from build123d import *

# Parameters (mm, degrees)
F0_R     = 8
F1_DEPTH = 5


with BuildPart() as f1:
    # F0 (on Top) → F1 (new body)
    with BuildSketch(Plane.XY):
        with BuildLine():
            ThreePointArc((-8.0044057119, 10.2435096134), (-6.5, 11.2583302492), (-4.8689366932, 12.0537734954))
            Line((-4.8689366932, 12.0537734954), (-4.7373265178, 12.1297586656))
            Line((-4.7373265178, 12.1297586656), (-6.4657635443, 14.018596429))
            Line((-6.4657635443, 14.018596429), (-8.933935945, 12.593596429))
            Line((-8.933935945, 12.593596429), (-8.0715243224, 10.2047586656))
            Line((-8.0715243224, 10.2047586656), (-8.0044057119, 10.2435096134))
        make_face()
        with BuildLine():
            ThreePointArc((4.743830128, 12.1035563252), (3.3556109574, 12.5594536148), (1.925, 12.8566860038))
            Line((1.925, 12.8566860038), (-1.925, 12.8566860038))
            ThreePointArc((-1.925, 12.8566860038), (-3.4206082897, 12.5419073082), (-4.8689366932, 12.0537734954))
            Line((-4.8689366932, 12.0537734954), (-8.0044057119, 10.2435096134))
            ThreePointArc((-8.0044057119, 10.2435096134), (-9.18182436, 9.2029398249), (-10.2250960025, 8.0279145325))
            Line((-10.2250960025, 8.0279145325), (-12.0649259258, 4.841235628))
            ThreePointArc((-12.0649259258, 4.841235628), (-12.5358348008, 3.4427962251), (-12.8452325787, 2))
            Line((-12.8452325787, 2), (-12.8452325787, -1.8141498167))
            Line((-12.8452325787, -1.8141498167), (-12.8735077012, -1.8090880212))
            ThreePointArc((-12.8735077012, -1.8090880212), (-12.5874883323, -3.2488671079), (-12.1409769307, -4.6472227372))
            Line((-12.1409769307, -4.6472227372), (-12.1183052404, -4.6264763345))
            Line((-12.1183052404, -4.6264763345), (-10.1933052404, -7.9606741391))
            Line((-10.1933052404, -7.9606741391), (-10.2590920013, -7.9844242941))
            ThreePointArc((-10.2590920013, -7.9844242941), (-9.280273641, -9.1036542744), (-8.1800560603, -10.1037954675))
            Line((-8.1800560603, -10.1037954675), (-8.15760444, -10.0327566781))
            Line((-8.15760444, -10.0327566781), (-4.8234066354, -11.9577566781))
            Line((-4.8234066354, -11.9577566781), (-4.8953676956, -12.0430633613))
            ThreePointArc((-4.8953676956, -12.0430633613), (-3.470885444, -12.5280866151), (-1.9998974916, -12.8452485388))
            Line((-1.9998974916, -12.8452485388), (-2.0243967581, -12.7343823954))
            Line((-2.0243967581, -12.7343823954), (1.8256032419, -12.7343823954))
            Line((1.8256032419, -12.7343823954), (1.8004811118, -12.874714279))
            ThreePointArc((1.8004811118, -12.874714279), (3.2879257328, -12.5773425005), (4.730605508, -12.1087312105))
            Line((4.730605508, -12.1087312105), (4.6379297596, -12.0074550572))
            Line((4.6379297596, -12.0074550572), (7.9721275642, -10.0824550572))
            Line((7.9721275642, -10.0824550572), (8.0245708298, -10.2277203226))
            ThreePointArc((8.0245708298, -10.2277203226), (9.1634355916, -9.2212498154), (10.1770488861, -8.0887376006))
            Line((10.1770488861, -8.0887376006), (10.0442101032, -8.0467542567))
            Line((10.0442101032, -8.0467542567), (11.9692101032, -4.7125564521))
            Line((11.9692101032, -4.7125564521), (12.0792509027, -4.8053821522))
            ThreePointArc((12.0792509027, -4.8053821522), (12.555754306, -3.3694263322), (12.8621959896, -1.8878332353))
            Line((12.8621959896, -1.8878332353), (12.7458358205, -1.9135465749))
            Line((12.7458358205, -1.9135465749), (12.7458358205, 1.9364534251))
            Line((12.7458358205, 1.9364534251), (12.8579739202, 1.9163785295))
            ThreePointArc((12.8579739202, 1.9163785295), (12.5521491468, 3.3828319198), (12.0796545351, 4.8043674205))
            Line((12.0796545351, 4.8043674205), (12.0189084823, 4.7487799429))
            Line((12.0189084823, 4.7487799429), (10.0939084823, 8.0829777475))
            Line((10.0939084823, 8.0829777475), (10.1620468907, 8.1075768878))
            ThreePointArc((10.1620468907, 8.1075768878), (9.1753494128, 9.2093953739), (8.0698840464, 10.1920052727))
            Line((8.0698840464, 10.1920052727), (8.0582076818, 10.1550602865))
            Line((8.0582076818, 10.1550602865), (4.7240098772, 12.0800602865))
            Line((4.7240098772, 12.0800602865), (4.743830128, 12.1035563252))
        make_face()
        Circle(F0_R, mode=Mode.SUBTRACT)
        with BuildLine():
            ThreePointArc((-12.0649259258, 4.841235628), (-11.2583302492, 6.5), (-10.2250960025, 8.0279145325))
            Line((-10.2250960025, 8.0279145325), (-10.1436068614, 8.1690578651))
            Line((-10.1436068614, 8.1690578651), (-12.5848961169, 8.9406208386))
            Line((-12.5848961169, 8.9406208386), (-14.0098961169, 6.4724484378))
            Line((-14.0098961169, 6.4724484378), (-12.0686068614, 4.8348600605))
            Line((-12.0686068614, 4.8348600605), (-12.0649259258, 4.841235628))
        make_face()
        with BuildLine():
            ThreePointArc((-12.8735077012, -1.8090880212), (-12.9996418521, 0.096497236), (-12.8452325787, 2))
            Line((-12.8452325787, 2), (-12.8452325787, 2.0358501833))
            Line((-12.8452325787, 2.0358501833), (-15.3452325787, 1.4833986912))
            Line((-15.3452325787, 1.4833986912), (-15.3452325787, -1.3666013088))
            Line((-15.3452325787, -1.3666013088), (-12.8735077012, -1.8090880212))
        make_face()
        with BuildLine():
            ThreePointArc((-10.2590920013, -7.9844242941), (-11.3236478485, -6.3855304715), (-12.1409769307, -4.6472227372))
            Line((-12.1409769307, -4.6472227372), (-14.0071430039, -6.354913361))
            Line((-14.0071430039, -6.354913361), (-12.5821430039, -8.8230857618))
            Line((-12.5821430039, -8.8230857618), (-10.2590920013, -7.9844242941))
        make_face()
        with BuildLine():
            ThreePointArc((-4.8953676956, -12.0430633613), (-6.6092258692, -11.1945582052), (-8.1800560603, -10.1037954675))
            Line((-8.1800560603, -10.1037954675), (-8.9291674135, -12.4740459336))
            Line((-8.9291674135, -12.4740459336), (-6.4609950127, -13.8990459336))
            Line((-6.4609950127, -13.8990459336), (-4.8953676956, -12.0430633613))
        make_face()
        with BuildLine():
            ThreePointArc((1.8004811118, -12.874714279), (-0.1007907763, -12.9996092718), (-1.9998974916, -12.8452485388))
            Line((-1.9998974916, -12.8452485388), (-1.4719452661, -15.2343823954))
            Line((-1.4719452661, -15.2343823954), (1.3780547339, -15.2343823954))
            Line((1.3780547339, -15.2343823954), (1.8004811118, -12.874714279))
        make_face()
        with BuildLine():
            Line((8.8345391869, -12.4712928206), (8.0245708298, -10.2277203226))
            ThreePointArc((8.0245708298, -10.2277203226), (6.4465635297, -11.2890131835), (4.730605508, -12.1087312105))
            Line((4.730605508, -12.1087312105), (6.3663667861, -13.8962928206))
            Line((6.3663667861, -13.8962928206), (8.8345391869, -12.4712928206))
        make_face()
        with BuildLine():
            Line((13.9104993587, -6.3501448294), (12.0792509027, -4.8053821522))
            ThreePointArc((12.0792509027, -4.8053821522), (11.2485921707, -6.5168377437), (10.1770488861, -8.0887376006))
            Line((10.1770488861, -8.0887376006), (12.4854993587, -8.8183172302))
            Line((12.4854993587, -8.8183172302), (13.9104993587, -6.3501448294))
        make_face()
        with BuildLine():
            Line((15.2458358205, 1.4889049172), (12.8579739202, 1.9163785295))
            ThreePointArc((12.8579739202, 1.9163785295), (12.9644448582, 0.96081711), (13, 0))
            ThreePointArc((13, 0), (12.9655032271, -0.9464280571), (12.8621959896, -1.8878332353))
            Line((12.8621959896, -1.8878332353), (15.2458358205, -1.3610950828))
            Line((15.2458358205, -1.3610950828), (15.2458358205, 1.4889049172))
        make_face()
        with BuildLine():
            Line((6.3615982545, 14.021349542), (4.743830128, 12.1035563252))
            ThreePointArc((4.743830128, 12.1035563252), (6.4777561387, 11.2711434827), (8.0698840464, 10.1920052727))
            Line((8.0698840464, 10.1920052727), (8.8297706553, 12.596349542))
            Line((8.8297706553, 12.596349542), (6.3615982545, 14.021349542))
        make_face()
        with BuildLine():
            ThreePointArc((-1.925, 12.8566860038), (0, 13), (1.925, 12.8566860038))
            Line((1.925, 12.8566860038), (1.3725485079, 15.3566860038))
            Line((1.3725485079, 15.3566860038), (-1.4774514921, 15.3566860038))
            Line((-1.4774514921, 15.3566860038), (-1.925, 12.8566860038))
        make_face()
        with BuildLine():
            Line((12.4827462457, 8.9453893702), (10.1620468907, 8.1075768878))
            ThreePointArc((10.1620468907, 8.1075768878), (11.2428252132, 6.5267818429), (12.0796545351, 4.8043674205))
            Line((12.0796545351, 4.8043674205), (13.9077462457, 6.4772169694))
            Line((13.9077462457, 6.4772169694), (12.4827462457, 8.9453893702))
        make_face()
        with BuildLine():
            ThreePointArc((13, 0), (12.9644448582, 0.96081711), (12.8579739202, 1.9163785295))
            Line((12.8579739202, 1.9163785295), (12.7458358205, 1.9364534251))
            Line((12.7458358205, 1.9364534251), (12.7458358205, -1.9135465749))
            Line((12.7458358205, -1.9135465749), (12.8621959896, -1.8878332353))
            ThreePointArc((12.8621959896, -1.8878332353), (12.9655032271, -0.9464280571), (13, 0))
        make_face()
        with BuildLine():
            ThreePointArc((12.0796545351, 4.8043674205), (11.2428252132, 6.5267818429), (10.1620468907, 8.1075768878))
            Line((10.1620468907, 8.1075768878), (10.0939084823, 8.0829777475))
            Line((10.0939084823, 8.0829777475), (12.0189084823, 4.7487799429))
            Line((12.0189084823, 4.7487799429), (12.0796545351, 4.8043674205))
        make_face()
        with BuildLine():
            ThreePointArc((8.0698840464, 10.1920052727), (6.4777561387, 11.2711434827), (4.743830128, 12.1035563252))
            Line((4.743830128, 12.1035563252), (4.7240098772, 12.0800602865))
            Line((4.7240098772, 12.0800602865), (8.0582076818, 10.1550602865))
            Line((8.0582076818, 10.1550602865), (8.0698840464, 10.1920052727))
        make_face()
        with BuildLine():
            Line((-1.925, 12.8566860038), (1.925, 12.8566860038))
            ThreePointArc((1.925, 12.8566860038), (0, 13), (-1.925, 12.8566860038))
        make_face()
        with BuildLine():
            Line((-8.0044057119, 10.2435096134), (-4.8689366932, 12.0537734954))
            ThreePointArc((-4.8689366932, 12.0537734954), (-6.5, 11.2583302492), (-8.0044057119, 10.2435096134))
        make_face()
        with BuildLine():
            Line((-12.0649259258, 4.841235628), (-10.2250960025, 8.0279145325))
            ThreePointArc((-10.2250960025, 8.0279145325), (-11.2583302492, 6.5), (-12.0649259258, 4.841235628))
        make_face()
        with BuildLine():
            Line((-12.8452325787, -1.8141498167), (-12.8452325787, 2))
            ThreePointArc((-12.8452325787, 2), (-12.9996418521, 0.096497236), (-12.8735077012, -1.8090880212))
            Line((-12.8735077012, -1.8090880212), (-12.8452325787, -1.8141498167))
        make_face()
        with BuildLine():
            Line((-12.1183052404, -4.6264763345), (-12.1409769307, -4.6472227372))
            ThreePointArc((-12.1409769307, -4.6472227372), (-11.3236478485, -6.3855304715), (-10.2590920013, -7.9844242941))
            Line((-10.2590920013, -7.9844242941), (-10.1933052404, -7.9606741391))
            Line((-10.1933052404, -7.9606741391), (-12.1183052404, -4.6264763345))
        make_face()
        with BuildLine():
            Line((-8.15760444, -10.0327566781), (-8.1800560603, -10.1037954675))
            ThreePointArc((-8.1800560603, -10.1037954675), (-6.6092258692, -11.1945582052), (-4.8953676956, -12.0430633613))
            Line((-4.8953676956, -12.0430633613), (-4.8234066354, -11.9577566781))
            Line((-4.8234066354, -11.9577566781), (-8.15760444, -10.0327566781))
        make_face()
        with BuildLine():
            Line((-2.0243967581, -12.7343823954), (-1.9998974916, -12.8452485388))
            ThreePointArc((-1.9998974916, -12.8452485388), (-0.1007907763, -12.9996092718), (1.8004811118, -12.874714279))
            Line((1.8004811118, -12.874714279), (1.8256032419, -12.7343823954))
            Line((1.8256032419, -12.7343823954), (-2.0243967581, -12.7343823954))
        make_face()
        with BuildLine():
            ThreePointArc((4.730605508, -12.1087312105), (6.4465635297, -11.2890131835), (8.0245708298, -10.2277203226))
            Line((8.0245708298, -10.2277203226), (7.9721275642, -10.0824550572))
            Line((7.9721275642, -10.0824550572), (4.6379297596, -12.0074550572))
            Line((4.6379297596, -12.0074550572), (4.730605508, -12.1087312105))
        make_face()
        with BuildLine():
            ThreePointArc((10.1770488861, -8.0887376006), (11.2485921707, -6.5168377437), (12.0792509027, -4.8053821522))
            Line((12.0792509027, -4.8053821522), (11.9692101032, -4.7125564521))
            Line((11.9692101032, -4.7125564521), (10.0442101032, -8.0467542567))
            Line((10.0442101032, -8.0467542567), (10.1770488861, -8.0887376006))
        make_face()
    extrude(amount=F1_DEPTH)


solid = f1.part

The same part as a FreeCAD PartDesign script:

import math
import FreeCAD as App
import Part
import Sketcher

V = App.Vector
Q = App.Units.Quantity

doc = App.newDocument("Part")
body = doc.addObject("PartDesign::Body", "Body")

sketch1 = body.newObject("Sketcher::SketchObject", "Sketch")
sketch1.AttachmentSupport = (doc.getObject("XY_Plane"), [""])
sketch1.MapMode = "FlatFace"
sketch1.addGeometry([
    Part.LineSegment(V(-4.869, 12.054, 0), V(-4.737, 12.13, 0)),
    Part.LineSegment(V(-4.737, 12.13, 0), V(-6.466, 14.019, 0)),
    Part.LineSegment(V(-6.466, 14.019, 0), V(-8.934, 12.594, 0)),
    Part.LineSegment(V(-8.934, 12.594, 0), V(-8.072, 10.205, 0)),
    Part.LineSegment(V(-8.072, 10.205, 0), V(-8.004, 10.244, 0)),
    Part.ArcOfCircle(Part.Circle(V(0, 0, 0), V(0, 0, 1), 13), math.radians(128), math.radians(141.86)),
    Part.LineSegment(V(-10.225, 8.028, 0), V(-10.144, 8.169, 0)),
    Part.LineSegment(V(-10.144, 8.169, 0), V(-12.585, 8.941, 0)),
    Part.LineSegment(V(-12.585, 8.941, 0), V(-14.01, 6.472, 0)),
    Part.LineSegment(V(-14.01, 6.472, 0), V(-12.069, 4.835, 0)),
    Part.LineSegment(V(-12.069, 4.835, 0), V(-12.065, 4.841, 0)),
    Part.ArcOfCircle(Part.Circle(V(0, 0, 0), V(0, 0, 1), 13), math.radians(158.14), math.radians(171.15)),
    Part.LineSegment(V(-12.845, 2, 0), V(-12.845, 2.036, 0)),
    Part.LineSegment(V(-12.845, 2.036, 0), V(-15.345, 1.483, 0)),
    Part.LineSegment(V(-15.345, 1.483, 0), V(-15.345, -1.367, 0)),
    Part.LineSegment(V(-15.345, -1.367, 0), V(-12.874, -1.809, 0)),
    Part.ArcOfCircle(Part.Circle(V(0, 0, 0), V(0, 0, 1), 13), math.radians(-172), math.radians(-159.05)),
    Part.LineSegment(V(-12.141, -4.647, 0), V(-14.007, -6.355, 0)),
    Part.LineSegment(V(-14.007, -6.355, 0), V(-12.582, -8.823, 0)),
    Part.LineSegment(V(-12.582, -8.823, 0), V(-10.259, -7.984, 0)),
    Part.ArcOfCircle(Part.Circle(V(0, 0, 0), V(0, 0, 1), 13), math.radians(-142.11), math.radians(-128.99)),
    Part.LineSegment(V(-8.18, -10.104, 0), V(-8.929, -12.474, 0)),
    Part.LineSegment(V(-8.929, -12.474, 0), V(-6.461, -13.899, 0)),
    Part.LineSegment(V(-6.461, -13.899, 0), V(-4.895, -12.043, 0)),
    Part.ArcOfCircle(Part.Circle(V(0, 0, 0), V(0, 0, 1), 13), math.radians(-112.12), math.radians(-98.85)),
    Part.LineSegment(V(-2, -12.845, 0), V(-1.472, -15.234, 0)),
    Part.LineSegment(V(-1.472, -15.234, 0), V(1.378, -15.234, 0)),
    Part.LineSegment(V(1.378, -15.234, 0), V(1.8, -12.875, 0)),
    Part.ArcOfCircle(Part.Circle(V(0, 0, 0), V(0, 0, 1), 13), math.radians(-82.04), math.radians(-68.66)),
    Part.LineSegment(V(4.731, -12.109, 0), V(6.366, -13.896, 0)),
    Part.LineSegment(V(6.366, -13.896, 0), V(8.835, -12.471, 0)),
    Part.LineSegment(V(8.835, -12.471, 0), V(8.025, -10.228, 0)),
    Part.ArcOfCircle(Part.Circle(V(0, 0, 0), V(0, 0, 1), 13), math.radians(-51.88), math.radians(-38.48)),
    Part.LineSegment(V(10.177, -8.089, 0), V(12.485, -8.818, 0)),
    Part.LineSegment(V(12.485, -8.818, 0), V(13.91, -6.35, 0)),
    Part.LineSegment(V(13.91, -6.35, 0), V(12.079, -4.805, 0)),
    Part.ArcOfCircle(Part.Circle(V(0, 0, 0), V(0, 0, 1), 13), math.radians(-21.69), math.radians(-8.35)),
    Part.LineSegment(V(12.862, -1.888, 0), V(15.246, -1.361, 0)),
    Part.LineSegment(V(15.246, -1.361, 0), V(15.246, 1.489, 0)),
    Part.LineSegment(V(15.246, 1.489, 0), V(12.858, 1.916, 0)),
    Part.ArcOfCircle(Part.Circle(V(0, 0, 0), V(0, 0, 1), 13), math.radians(8.48), math.radians(21.69)),
    Part.LineSegment(V(12.08, 4.804, 0), V(13.908, 6.477, 0)),
    Part.LineSegment(V(13.908, 6.477, 0), V(12.483, 8.945, 0)),
    Part.LineSegment(V(12.483, 8.945, 0), V(10.162, 8.108, 0)),
    Part.ArcOfCircle(Part.Circle(V(0, 0, 0), V(0, 0, 1), 13), math.radians(38.58), math.radians(51.63)),
    Part.LineSegment(V(8.07, 10.192, 0), V(8.83, 12.596, 0)),
    Part.LineSegment(V(8.83, 12.596, 0), V(6.362, 14.021, 0)),
    Part.LineSegment(V(6.362, 14.021, 0), V(4.744, 12.104, 0)),
    Part.ArcOfCircle(Part.Circle(V(0, 0, 0), V(0, 0, 1), 13), math.radians(68.6), math.radians(81.48)),
    Part.LineSegment(V(1.925, 12.857, 0), V(1.373, 15.357, 0)),
    Part.LineSegment(V(1.373, 15.357, 0), V(-1.477, 15.357, 0)),
    Part.LineSegment(V(-1.477, 15.357, 0), V(-1.925, 12.857, 0)),
    Part.ArcOfCircle(Part.Circle(V(0, 0, 0), V(0, 0, 1), 13), math.radians(98.52), math.radians(112)),
    Part.Circle(V(0, 0, 0), V(0, 0, 1), 8),
], False)
sketch1.addConstraint([
    Sketcher.Constraint("Coincident", 0, 2, 1, 1),
    Sketcher.Constraint("Coincident", 1, 2, 2, 1),
    Sketcher.Constraint("Coincident", 2, 2, 3, 1),
    Sketcher.Constraint("Coincident", 3, 2, 4, 1),
    Sketcher.Constraint("Coincident", 4, 2, 5, 1),
    Sketcher.Constraint("Coincident", 5, 2, 6, 1),
    Sketcher.Constraint("Coincident", 6, 2, 7, 1),
    Sketcher.Constraint("Coincident", 7, 2, 8, 1),
    Sketcher.Constraint("Coincident", 8, 2, 9, 1),
    Sketcher.Constraint("Coincident", 9, 2, 10, 1),
    Sketcher.Constraint("Coincident", 10, 2, 11, 1),
    Sketcher.Constraint("Coincident", 11, 2, 12, 1),
    Sketcher.Constraint("Coincident", 12, 2, 13, 1),
    Sketcher.Constraint("Coincident", 13, 2, 14, 1),
    Sketcher.Constraint("Coincident", 14, 2, 15, 1),
    Sketcher.Constraint("Coincident", 15, 2, 16, 1),
    Sketcher.Constraint("Coincident", 16, 2, 17, 1),
    Sketcher.Constraint("Coincident", 17, 2, 18, 1),
    Sketcher.Constraint("Coincident", 18, 2, 19, 1),
    Sketcher.Constraint("Coincident", 19, 2, 20, 1),
    Sketcher.Constraint("Coincident", 20, 2, 21, 1),
    Sketcher.Constraint("Coincident", 21, 2, 22, 1),
    Sketcher.Constraint("Coincident", 22, 2, 23, 1),
    Sketcher.Constraint("Coincident", 23, 2, 24, 1),
    Sketcher.Constraint("Coincident", 24, 2, 25, 1),
    Sketcher.Constraint("Coincident", 25, 2, 26, 1),
    Sketcher.Constraint("Coincident", 26, 2, 27, 1),
    Sketcher.Constraint("Coincident", 27, 2, 28, 1),
    Sketcher.Constraint("Coincident", 28, 2, 29, 1),
    Sketcher.Constraint("Coincident", 29, 2, 30, 1),
    Sketcher.Constraint("Coincident", 30, 2, 31, 1),
    Sketcher.Constraint("Coincident", 31, 2, 32, 1),
    Sketcher.Constraint("Coincident", 32, 2, 33, 1),
    Sketcher.Constraint("Coincident", 33, 2, 34, 1),
    Sketcher.Constraint("Coincident", 34, 2, 35, 1),
    Sketcher.Constraint("Coincident", 35, 2, 36, 1),
    Sketcher.Constraint("Coincident", 36, 2, 37, 1),
    Sketcher.Constraint("Coincident", 37, 2, 38, 1),
    Sketcher.Constraint("Coincident", 38, 2, 39, 1),
    Sketcher.Constraint("Coincident", 39, 2, 40, 1),
    Sketcher.Constraint("Coincident", 40, 2, 41, 1),
    Sketcher.Constraint("Coincident", 41, 2, 42, 1),
    Sketcher.Constraint("Coincident", 42, 2, 43, 1),
    Sketcher.Constraint("Coincident", 43, 2, 44, 1),
    Sketcher.Constraint("Coincident", 44, 2, 45, 1),
    Sketcher.Constraint("Coincident", 45, 2, 46, 1),
    Sketcher.Constraint("Coincident", 46, 2, 47, 1),
    Sketcher.Constraint("Coincident", 47, 2, 48, 1),
    Sketcher.Constraint("Coincident", 48, 2, 49, 1),
    Sketcher.Constraint("Coincident", 49, 2, 50, 1),
    Sketcher.Constraint("Coincident", 50, 2, 51, 1),
    Sketcher.Constraint("Coincident", 51, 2, 52, 1),
    Sketcher.Constraint("Coincident", 52, 2, 0, 1),
    Sketcher.Constraint("Vertical", 12),
    Sketcher.Constraint("Vertical", 14),
    Sketcher.Constraint("Horizontal", 26),
    Sketcher.Constraint("Vertical", 38),
    Sketcher.Constraint("Horizontal", 50),
    Sketcher.Constraint("Coincident", 5, 3, -1, 1),
    Sketcher.Constraint("Coincident", 11, 3, -1, 1),
    Sketcher.Constraint("Coincident", 16, 3, -1, 1),
    Sketcher.Constraint("Coincident", 20, 3, -1, 1),
    Sketcher.Constraint("Coincident", 24, 3, -1, 1),
    Sketcher.Constraint("Coincident", 28, 3, -1, 1),
    Sketcher.Constraint("Coincident", 32, 3, -1, 1),
    Sketcher.Constraint("Coincident", 36, 3, -1, 1),
    Sketcher.Constraint("Coincident", 40, 3, -1, 1),
    Sketcher.Constraint("Coincident", 44, 3, -1, 1),
    Sketcher.Constraint("Coincident", 48, 3, -1, 1),
    Sketcher.Constraint("Coincident", 52, 3, -1, 1),
    Sketcher.Constraint("Coincident", 53, 3, -1, 1),
    Sketcher.Constraint("Equal", 5, 11),
    Sketcher.Constraint("Equal", 11, 16),
    Sketcher.Constraint("Equal", 16, 20),
    Sketcher.Constraint("Equal", 20, 24),
    Sketcher.Constraint("Equal", 24, 28),
    Sketcher.Constraint("Equal", 28, 32),
    Sketcher.Constraint("Equal", 32, 36),
    Sketcher.Constraint("Equal", 36, 40),
    Sketcher.Constraint("Equal", 40, 44),
    Sketcher.Constraint("Equal", 44, 48),
    Sketcher.Constraint("Equal", 48, 52),
    Sketcher.Constraint("Parallel", 0, 2),
    Sketcher.Constraint("Parallel", 2, 4),
    Sketcher.Constraint("Parallel", 6, 8),
    Sketcher.Constraint("Parallel", 8, 10),
    Sketcher.Constraint("Perpendicular", 1, 17),
    Sketcher.Constraint("Perpendicular", 4, 18),
    Sketcher.Constraint("Perpendicular", 3, 19),
    Sketcher.Constraint("Perpendicular", 7, 21),
    Sketcher.Constraint("Perpendicular", 10, 22),
    Sketcher.Constraint("Perpendicular", 9, 23),
    Sketcher.Constraint("Perpendicular", 13, 25),
    Sketcher.Constraint("Perpendicular", 15, 27),
    Sketcher.Constraint("Perpendicular", 17, 29),
    Sketcher.Constraint("Perpendicular", 18, 30),
    Sketcher.Constraint("Perpendicular", 19, 31),
    Sketcher.Constraint("Perpendicular", 21, 33),
    Sketcher.Constraint("Perpendicular", 22, 34),
    Sketcher.Constraint("Perpendicular", 23, 35),
    Sketcher.Constraint("Perpendicular", 25, 37),
    Sketcher.Constraint("Perpendicular", 27, 39),
    Sketcher.Constraint("Perpendicular", 29, 41),
    Sketcher.Constraint("Perpendicular", 30, 42),
    Sketcher.Constraint("Perpendicular", 31, 43),
    Sketcher.Constraint("Perpendicular", 33, 45),
    Sketcher.Constraint("Perpendicular", 34, 46),
    Sketcher.Constraint("Perpendicular", 35, 47),
    Sketcher.Constraint("Perpendicular", 37, 49),
    Sketcher.Constraint("Perpendicular", 39, 51),
    Sketcher.Constraint("Horizontal", 48, 2, 51, 2),
    Sketcher.Constraint("Equal", 26, 50),
    Sketcher.Constraint("Equal", 50, 14),
    Sketcher.Constraint("Equal", 14, 38),
    Sketcher.Constraint("Equal", 1, 7),
    Sketcher.Constraint("Equal", 2, 8),
    Sketcher.Constraint("Equal", 3, 9),
    Sketcher.Constraint("Equal", 7, 13),
    Sketcher.Constraint("Equal", 8, 18),
    Sketcher.Constraint("Equal", 18, 22),
    Sketcher.Constraint("Equal", 22, 30),
    Sketcher.Constraint("Equal", 30, 34),
    Sketcher.Constraint("Equal", 34, 42),
    Sketcher.Constraint("Equal", 42, 46),
    Sketcher.Constraint("Equal", 13, 49),
    Sketcher.Constraint("Equal", 9, 51),
    Sketcher.Constraint("Diameter", 53, Q("16 mm")),
    Sketcher.Constraint("Radius", 5, Q("13 mm")),
    Sketcher.Constraint("Angle", 0, Q("30 deg")),
    Sketcher.Constraint("Angle", 6, Q("60 deg")),
    Sketcher.Constraint("DistanceY", -1, 1, 11, 2, Q("2 mm")),
    Sketcher.Constraint("DistanceX", 26, 1, 26, 2, Q("2.85 mm")),
    Sketcher.Constraint("Distance", 2, Q("2.85 mm")),
    Sketcher.Constraint("DistanceX", -1, 1, 48, 2, Q("1.925 mm")),
    Sketcher.Constraint("Distance", 4, Q("0.077502 mm")),
    Sketcher.Constraint("Distance", 19, Q("2.469801 mm")),
    Sketcher.Constraint("Distance", 43, Q("2.467301 mm")),
    Sketcher.Constraint("DistanceY", 12, 1, 12, 2, Q("0.03585 mm")),
    Sketcher.Constraint("DistanceY", -1, 1, 13, 2, Q("1.483399 mm")),
    Sketcher.Constraint("DistanceX", -1, 1, 33, 2, Q("12.485499 mm")),
    Sketcher.Constraint("DistanceX", -1, 1, 46, 2, Q("6.361598 mm")),
    Sketcher.Constraint("Distance", 0, Q("0.15197 mm")),
    Sketcher.Constraint("Distance", 6, Q("0.162978 mm")),
    Sketcher.Constraint("Distance", 10, Q("0.007362 mm")),
    Sketcher.Constraint("Distance", 15, Q("2.511019 mm")),
    Sketcher.Constraint("Distance", 17, Q("2.529582 mm")),
    Sketcher.Constraint("Distance", 21, Q("2.485811 mm")),
    Sketcher.Constraint("Distance", 23, Q("2.428139 mm")),
    Sketcher.Constraint("Distance", 27, Q("2.397181 mm")),
    Sketcher.Constraint("Distance", 35, Q("2.39578 mm")),
    Sketcher.Constraint("Distance", 41, Q("2.477972 mm")),
    Sketcher.Constraint("DistanceY", -1, 1, 0, 2, Q("12.129759 mm")),
    Sketcher.Constraint("DistanceY", -1, 1, 3, 2, Q("10.204759 mm")),
    Sketcher.Constraint("DistanceY", -1, 1, 7, 2, Q("8.940621 mm")),
    Sketcher.Constraint("DistanceY", -1, 1, 9, 2, Q("4.83486 mm")),
    Sketcher.Constraint("DistanceY", 24, 2, -1, 1, Q("12.845249 mm")),
    Sketcher.Constraint("DistanceY", 28, 2, -1, 1, Q("12.108731 mm")),
    Sketcher.Constraint("DistanceX", -1, 1, 30, 2, Q("8.834539 mm")),
    Sketcher.Constraint("DistanceY", -1, 1, 39, 2, Q("1.916379 mm")),
    Sketcher.Constraint("DistanceY", -1, 1, 45, 2, Q("12.59635 mm")),
    Sketcher.Constraint("Distance", 37, Q("2.441146 mm")),
])
pad1 = body.newObject("PartDesign::Pad", "Pad")
pad1.Profile = sketch1
pad1.Length = 5

doc.recompute()
